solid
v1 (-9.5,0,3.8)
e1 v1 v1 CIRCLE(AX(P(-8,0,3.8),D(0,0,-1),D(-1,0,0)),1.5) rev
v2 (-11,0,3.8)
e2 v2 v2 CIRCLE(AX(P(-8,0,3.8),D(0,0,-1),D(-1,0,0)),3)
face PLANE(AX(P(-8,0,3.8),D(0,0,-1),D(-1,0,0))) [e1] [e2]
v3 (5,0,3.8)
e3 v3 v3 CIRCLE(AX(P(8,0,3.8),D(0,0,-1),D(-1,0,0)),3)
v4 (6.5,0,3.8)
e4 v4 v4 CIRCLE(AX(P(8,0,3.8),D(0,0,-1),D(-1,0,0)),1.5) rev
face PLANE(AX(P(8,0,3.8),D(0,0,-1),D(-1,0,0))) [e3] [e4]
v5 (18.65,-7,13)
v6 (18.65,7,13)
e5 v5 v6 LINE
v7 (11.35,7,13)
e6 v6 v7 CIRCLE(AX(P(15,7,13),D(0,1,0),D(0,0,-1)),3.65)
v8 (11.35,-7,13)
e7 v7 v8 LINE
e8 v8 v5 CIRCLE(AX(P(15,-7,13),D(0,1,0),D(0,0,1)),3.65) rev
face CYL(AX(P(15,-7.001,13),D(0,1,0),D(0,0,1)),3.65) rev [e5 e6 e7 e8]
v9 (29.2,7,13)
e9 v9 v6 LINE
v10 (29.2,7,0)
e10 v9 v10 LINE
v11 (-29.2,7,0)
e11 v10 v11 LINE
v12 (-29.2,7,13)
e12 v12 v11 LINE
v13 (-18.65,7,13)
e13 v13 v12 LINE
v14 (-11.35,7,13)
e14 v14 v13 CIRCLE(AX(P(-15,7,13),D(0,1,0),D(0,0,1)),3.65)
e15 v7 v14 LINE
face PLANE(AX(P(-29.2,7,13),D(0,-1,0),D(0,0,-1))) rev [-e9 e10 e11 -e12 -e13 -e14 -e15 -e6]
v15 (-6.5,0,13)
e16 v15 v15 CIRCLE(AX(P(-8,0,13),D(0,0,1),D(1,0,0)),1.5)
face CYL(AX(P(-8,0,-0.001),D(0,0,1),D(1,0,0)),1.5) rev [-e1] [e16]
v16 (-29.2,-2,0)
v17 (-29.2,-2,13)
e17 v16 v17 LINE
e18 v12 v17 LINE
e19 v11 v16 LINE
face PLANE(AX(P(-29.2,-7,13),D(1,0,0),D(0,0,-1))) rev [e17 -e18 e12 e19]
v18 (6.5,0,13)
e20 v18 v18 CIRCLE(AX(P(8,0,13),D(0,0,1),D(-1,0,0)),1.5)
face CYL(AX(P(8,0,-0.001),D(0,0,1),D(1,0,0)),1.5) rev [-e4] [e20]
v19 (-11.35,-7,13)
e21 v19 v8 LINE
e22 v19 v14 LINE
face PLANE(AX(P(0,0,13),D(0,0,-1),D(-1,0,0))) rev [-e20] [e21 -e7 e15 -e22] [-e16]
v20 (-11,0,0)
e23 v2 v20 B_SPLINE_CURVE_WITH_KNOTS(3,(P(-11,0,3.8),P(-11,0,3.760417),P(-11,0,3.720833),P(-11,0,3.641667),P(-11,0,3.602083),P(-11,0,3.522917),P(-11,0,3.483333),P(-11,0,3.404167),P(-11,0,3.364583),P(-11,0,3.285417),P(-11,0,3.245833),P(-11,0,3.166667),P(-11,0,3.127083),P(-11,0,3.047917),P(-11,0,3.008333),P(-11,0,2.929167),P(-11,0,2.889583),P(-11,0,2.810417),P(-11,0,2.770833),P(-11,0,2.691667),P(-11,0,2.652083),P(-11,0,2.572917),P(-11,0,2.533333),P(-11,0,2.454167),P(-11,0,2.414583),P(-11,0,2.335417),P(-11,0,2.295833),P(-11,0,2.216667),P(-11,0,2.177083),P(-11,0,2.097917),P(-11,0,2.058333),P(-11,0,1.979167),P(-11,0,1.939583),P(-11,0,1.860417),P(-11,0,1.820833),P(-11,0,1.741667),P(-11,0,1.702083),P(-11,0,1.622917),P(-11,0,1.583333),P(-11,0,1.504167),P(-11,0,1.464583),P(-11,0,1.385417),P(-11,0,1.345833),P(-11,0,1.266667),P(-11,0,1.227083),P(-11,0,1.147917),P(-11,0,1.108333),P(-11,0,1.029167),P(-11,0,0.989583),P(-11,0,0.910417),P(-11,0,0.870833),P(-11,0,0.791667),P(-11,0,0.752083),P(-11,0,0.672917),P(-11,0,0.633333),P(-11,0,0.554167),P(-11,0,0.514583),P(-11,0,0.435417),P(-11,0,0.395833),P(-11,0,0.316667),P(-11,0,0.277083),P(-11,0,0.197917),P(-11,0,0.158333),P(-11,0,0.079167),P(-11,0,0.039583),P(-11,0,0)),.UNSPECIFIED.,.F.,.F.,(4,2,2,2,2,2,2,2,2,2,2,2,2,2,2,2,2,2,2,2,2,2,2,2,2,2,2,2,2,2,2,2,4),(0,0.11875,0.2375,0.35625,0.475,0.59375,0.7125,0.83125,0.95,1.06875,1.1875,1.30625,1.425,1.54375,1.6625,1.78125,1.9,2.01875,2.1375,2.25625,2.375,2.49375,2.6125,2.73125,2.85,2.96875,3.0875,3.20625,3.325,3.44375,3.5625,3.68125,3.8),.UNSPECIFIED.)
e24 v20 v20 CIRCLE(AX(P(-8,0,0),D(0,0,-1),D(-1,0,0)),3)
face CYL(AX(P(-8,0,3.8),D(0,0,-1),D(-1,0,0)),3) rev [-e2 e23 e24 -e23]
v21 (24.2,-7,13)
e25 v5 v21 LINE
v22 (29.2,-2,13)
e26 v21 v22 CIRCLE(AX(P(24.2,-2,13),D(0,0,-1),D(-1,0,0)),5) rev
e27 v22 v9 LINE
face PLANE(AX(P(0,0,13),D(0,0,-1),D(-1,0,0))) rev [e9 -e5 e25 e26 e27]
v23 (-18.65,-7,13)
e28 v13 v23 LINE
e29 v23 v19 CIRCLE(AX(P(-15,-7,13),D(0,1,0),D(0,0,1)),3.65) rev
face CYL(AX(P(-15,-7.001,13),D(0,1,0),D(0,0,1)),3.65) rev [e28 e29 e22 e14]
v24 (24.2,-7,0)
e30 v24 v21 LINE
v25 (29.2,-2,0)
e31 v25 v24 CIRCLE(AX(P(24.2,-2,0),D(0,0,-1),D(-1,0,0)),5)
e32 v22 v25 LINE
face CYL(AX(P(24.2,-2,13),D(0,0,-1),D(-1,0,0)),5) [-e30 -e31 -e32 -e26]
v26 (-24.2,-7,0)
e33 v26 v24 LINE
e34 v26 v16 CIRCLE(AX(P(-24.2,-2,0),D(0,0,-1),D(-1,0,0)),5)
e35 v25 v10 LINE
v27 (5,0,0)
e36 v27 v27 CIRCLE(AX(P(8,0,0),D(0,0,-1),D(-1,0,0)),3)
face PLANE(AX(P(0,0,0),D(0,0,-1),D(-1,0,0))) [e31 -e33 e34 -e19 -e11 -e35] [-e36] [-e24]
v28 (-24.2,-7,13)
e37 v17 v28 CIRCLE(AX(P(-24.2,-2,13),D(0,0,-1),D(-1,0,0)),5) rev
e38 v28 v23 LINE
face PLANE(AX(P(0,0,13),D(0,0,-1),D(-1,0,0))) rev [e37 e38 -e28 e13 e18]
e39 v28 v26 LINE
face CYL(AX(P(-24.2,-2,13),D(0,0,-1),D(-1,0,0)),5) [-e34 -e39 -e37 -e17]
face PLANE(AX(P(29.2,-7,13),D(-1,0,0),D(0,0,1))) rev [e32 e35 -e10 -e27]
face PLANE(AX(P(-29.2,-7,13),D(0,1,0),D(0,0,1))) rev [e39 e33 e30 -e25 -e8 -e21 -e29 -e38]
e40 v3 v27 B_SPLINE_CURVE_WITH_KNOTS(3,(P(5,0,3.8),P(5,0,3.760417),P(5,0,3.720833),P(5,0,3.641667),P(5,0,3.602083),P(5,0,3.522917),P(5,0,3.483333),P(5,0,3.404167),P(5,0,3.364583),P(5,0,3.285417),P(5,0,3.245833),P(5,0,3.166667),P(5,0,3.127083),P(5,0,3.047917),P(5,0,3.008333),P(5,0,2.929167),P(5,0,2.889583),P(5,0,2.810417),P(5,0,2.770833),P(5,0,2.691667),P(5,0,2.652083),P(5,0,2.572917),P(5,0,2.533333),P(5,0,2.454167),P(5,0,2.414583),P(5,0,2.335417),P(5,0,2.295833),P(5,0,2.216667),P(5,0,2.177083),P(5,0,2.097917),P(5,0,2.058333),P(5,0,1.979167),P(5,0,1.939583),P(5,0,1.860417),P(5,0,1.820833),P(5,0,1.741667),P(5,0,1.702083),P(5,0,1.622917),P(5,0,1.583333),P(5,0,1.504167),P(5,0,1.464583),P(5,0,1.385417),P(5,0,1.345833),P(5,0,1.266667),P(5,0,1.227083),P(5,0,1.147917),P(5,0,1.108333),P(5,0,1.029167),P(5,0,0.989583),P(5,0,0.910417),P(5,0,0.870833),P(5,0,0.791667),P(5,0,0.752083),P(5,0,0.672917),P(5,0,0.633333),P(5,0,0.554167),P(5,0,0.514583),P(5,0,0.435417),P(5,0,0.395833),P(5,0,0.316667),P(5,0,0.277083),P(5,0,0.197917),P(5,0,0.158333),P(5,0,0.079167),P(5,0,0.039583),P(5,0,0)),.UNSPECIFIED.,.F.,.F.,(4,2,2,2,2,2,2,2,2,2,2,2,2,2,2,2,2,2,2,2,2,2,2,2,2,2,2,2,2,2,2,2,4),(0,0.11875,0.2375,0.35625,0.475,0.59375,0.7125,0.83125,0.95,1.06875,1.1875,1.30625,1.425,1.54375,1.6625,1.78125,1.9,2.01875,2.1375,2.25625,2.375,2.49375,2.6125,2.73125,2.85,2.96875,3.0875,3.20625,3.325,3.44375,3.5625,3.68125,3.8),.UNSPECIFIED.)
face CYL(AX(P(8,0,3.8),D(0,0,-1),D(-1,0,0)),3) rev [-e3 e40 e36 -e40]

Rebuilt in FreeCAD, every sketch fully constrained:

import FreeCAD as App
import Part
import Sketcher

V = App.Vector


def edges_at(feature, points):
    """Names of the edges that pass closest to the given points."""
    edges = feature.Shape.Edges
    near = lambda p: min(range(len(edges)), key=lambda i: edges[i].distToShape(Part.Vertex(*p))[0])
    return sorted({f"Edge{near(p) + 1}" for p in points})


def add_polygon(sketch, points):
    """Adds a closed chain of lines whose ends are joined by coincident constraints."""
    first, n = sketch.GeometryCount, len(points)
    for a, b in zip(points, points[1:] + points[:1]):
        sketch.addGeometry(Part.LineSegment(App.Vector(*a, 0), App.Vector(*b, 0)), False)
    for i in range(n):
        sketch.addConstraint(Sketcher.Constraint("Coincident", first + i, 2, first + (i + 1) % n, 1))

doc = App.newDocument("Part")
params = doc.addObject("Spreadsheet::Sheet", "Params")
for row, (alias, value) in enumerate([
    ("sketch1_height", "14 mm"),
    ("sketch1_width", "58.4 mm"),
    ("pad1_length", "13 mm"),
    ("sketch2_diameter", "3 mm"),
    ("sketch3_diameter", "3 mm"),
    ("sketch4_diameter", "7.3 mm"),
    ("sketch5_diameter", "7.3 mm"),
    ("sketch6_diameter", "6 mm"),
    ("pocket5_length", "3.8 mm"),
    ("fillet_radius", "5 mm"),
], start=1):
    params.set(f"A{row}", alias)
    params.set(f"B{row}", "=" + value)
    params.setAlias(f"B{row}", alias)

body = doc.addObject("PartDesign::Body", "Body")

# Sketch on XY plane
sketch1 = body.newObject("Sketcher::SketchObject", "Sketch")
sketch1.AttachmentSupport = (doc.getObject("XY_Plane"), [""])
sketch1.MapMode = "FlatFace"
add_polygon(sketch1, [(-29, 7), (-29, -7), (29, -7), (29, 7)])  # lines 0-3
sketch1.addConstraint(Sketcher.Constraint("Vertical", 0))
sketch1.addConstraint(Sketcher.Constraint("Horizontal", 1))
sketch1.addConstraint(Sketcher.Constraint("Vertical", 2))
sketch1.addConstraint(Sketcher.Constraint("Horizontal", 3))
sketch1.addConstraint(Sketcher.Constraint("Symmetric", 0, 2, 2, 2, -1, 1))
sketch1.addConstraint(Sketcher.Constraint("DistanceY", 0, 2, 0, 1, 14.0))
sketch1.addConstraint(Sketcher.Constraint("DistanceX", 1, 1, 1, 2, 58.4))
sketch1.setExpression("Constraints[9]", "Params.sketch1_height")
sketch1.setExpression("Constraints[10]", "Params.sketch1_width")
pad1 = body.newObject("PartDesign::Pad", "Pad")
pad1.Profile = sketch1
pad1.setExpression("Length", "Params.pad1_length")

# Sketch on XY plane
sketch2 = body.newObject("Sketcher::SketchObject", "Sketch001")
sketch2.AttachmentSupport = (doc.getObject("XY_Plane"), [""])
sketch2.MapMode = "FlatFace"
sketch2.AttachmentOffset = App.Placement(V(0, 0, 13), App.Rotation())
sketch2.addGeometry(Part.Circle(V(-8, 0, 0), V(0, 0, 1), 1.5), False)
sketch2.addConstraint(Sketcher.Constraint("PointOnObject", 0, 3, -1))
sketch2.addConstraint(Sketcher.Constraint("Diameter", 0, 3.0))
sketch2.addConstraint(Sketcher.Constraint("DistanceX", 0, 3, -1, 1, 8.0))
sketch2.setExpression("Constraints[1]", "Params.sketch2_diameter")
pocket1 = body.newObject("PartDesign::Pocket", "Pocket")
pocket1.Profile = sketch2
pocket1.Type = "UpToFirst"

# Sketch on XY plane
sketch3 = body.newObject("Sketcher::SketchObject", "Sketch002")
sketch3.AttachmentSupport = (doc.getObject("XY_Plane"), [""])
sketch3.MapMode = "FlatFace"
sketch3.AttachmentOffset = App.Placement(V(0, 0, 13), App.Rotation())
sketch3.addGeometry(Part.Circle(V(8, 0, 0), V(0, 0, 1), 1.5), False)
sketch3.addConstraint(Sketcher.Constraint("PointOnObject", 0, 3, -1))
sketch3.addConstraint(Sketcher.Constraint("Diameter", 0, 3.0))
sketch3.addConstraint(Sketcher.Constraint("DistanceX", -1, 1, 0, 3, 8.0))
sketch3.setExpression("Constraints[1]", "Params.sketch3_diameter")
pocket2 = body.newObject("PartDesign::Pocket", "Pocket001")
pocket2.Profile = sketch3
pocket2.Type = "UpToFirst"

# Sketch on XZ plane
sketch4 = body.newObject("Sketcher::SketchObject", "Sketch003")
sketch4.AttachmentSupport = (doc.getObject("XZ_Plane"), [""])
sketch4.MapMode = "FlatFace"
sketch4.AttachmentOffset = App.Placement(V(0, 0, -7), App.Rotation())
sketch4.addGeometry(Part.Circle(V(-15, 13, 0), V(0, 0, 1), 3.6), False)
sketch4.addConstraint(Sketcher.Constraint("Diameter", 0, 7.3))
sketch4.addConstraint(Sketcher.Constraint("DistanceX", 0, 3, -1, 1, 15.0))
sketch4.addConstraint(Sketcher.Constraint("DistanceY", -1, 1, 0, 3, 13.0))
sketch4.setExpression("Constraints[0]", "Params.sketch4_diameter")
pocket3 = body.newObject("PartDesign::Pocket", "Pocket002")
pocket3.Profile = sketch4
pocket3.Type = "UpToFirst"
pocket3.Reversed = True

# Sketch on XZ plane
sketch5 = body.newObject("Sketcher::SketchObject", "Sketch004")
sketch5.AttachmentSupport = (doc.getObject("XZ_Plane"), [""])
sketch5.MapMode = "FlatFace"
sketch5.AttachmentOffset = App.Placement(V(0, 0, -7), App.Rotation())
sketch5.addGeometry(Part.Circle(V(15, 13, 0), V(0, 0, 1), 3.6), False)
sketch5.addConstraint(Sketcher.Constraint("Diameter", 0, 7.3))
sketch5.addConstraint(Sketcher.Constraint("DistanceX", -1, 1, 0, 3, 15.0))
sketch5.addConstraint(Sketcher.Constraint("DistanceY", -1, 1, 0, 3, 13.0))
sketch5.setExpression("Constraints[0]", "Params.sketch5_diameter")
pocket4 = body.newObject("PartDesign::Pocket", "Pocket003")
pocket4.Profile = sketch5
pocket4.Type = "UpToFirst"
pocket4.Reversed = True

# Sketch on XY plane
sketch6 = body.newObject("Sketcher::SketchObject", "Sketch005")
sketch6.AttachmentSupport = (doc.getObject("XY_Plane"), [""])
sketch6.MapMode = "FlatFace"
sketch6.addGeometry(Part.Circle(V(8, 0, 0), V(0, 0, 1), 3), False)
sketch6.addGeometry(Part.Circle(V(-8, 0, 0), V(0, 0, 1), 3), False)
sketch6.addConstraint(Sketcher.Constraint("Equal", 0, 1))
sketch6.addConstraint(Sketcher.Constraint("Symmetric", 0, 3, 1, 3, -1, 1))
sketch6.addConstraint(Sketcher.Constraint("PointOnObject", 0, 3, -1))
sketch6.addConstraint(Sketcher.Constraint("Diameter", 0, 6.0))
sketch6.addConstraint(Sketcher.Constraint("DistanceX", -1, 1, 0, 3, 8.0))
sketch6.setExpression("Constraints[3]", "Params.sketch6_diameter")
pocket5 = body.newObject("PartDesign::Pocket", "Pocket004")
pocket5.Profile = sketch6
pocket5.setExpression("Length", "Params.pocket5_length")
pocket5.Reversed = True
doc.recompute()

fillet = body.newObject("PartDesign::Fillet", "Fillet")
fillet.Base = (pocket5, edges_at(pocket5, [(29.2, -7, 6.5), (-29.2, -7, 6.5)]))
fillet.setExpression("Radius", "Params.fillet_radius")

doc.recompute()
